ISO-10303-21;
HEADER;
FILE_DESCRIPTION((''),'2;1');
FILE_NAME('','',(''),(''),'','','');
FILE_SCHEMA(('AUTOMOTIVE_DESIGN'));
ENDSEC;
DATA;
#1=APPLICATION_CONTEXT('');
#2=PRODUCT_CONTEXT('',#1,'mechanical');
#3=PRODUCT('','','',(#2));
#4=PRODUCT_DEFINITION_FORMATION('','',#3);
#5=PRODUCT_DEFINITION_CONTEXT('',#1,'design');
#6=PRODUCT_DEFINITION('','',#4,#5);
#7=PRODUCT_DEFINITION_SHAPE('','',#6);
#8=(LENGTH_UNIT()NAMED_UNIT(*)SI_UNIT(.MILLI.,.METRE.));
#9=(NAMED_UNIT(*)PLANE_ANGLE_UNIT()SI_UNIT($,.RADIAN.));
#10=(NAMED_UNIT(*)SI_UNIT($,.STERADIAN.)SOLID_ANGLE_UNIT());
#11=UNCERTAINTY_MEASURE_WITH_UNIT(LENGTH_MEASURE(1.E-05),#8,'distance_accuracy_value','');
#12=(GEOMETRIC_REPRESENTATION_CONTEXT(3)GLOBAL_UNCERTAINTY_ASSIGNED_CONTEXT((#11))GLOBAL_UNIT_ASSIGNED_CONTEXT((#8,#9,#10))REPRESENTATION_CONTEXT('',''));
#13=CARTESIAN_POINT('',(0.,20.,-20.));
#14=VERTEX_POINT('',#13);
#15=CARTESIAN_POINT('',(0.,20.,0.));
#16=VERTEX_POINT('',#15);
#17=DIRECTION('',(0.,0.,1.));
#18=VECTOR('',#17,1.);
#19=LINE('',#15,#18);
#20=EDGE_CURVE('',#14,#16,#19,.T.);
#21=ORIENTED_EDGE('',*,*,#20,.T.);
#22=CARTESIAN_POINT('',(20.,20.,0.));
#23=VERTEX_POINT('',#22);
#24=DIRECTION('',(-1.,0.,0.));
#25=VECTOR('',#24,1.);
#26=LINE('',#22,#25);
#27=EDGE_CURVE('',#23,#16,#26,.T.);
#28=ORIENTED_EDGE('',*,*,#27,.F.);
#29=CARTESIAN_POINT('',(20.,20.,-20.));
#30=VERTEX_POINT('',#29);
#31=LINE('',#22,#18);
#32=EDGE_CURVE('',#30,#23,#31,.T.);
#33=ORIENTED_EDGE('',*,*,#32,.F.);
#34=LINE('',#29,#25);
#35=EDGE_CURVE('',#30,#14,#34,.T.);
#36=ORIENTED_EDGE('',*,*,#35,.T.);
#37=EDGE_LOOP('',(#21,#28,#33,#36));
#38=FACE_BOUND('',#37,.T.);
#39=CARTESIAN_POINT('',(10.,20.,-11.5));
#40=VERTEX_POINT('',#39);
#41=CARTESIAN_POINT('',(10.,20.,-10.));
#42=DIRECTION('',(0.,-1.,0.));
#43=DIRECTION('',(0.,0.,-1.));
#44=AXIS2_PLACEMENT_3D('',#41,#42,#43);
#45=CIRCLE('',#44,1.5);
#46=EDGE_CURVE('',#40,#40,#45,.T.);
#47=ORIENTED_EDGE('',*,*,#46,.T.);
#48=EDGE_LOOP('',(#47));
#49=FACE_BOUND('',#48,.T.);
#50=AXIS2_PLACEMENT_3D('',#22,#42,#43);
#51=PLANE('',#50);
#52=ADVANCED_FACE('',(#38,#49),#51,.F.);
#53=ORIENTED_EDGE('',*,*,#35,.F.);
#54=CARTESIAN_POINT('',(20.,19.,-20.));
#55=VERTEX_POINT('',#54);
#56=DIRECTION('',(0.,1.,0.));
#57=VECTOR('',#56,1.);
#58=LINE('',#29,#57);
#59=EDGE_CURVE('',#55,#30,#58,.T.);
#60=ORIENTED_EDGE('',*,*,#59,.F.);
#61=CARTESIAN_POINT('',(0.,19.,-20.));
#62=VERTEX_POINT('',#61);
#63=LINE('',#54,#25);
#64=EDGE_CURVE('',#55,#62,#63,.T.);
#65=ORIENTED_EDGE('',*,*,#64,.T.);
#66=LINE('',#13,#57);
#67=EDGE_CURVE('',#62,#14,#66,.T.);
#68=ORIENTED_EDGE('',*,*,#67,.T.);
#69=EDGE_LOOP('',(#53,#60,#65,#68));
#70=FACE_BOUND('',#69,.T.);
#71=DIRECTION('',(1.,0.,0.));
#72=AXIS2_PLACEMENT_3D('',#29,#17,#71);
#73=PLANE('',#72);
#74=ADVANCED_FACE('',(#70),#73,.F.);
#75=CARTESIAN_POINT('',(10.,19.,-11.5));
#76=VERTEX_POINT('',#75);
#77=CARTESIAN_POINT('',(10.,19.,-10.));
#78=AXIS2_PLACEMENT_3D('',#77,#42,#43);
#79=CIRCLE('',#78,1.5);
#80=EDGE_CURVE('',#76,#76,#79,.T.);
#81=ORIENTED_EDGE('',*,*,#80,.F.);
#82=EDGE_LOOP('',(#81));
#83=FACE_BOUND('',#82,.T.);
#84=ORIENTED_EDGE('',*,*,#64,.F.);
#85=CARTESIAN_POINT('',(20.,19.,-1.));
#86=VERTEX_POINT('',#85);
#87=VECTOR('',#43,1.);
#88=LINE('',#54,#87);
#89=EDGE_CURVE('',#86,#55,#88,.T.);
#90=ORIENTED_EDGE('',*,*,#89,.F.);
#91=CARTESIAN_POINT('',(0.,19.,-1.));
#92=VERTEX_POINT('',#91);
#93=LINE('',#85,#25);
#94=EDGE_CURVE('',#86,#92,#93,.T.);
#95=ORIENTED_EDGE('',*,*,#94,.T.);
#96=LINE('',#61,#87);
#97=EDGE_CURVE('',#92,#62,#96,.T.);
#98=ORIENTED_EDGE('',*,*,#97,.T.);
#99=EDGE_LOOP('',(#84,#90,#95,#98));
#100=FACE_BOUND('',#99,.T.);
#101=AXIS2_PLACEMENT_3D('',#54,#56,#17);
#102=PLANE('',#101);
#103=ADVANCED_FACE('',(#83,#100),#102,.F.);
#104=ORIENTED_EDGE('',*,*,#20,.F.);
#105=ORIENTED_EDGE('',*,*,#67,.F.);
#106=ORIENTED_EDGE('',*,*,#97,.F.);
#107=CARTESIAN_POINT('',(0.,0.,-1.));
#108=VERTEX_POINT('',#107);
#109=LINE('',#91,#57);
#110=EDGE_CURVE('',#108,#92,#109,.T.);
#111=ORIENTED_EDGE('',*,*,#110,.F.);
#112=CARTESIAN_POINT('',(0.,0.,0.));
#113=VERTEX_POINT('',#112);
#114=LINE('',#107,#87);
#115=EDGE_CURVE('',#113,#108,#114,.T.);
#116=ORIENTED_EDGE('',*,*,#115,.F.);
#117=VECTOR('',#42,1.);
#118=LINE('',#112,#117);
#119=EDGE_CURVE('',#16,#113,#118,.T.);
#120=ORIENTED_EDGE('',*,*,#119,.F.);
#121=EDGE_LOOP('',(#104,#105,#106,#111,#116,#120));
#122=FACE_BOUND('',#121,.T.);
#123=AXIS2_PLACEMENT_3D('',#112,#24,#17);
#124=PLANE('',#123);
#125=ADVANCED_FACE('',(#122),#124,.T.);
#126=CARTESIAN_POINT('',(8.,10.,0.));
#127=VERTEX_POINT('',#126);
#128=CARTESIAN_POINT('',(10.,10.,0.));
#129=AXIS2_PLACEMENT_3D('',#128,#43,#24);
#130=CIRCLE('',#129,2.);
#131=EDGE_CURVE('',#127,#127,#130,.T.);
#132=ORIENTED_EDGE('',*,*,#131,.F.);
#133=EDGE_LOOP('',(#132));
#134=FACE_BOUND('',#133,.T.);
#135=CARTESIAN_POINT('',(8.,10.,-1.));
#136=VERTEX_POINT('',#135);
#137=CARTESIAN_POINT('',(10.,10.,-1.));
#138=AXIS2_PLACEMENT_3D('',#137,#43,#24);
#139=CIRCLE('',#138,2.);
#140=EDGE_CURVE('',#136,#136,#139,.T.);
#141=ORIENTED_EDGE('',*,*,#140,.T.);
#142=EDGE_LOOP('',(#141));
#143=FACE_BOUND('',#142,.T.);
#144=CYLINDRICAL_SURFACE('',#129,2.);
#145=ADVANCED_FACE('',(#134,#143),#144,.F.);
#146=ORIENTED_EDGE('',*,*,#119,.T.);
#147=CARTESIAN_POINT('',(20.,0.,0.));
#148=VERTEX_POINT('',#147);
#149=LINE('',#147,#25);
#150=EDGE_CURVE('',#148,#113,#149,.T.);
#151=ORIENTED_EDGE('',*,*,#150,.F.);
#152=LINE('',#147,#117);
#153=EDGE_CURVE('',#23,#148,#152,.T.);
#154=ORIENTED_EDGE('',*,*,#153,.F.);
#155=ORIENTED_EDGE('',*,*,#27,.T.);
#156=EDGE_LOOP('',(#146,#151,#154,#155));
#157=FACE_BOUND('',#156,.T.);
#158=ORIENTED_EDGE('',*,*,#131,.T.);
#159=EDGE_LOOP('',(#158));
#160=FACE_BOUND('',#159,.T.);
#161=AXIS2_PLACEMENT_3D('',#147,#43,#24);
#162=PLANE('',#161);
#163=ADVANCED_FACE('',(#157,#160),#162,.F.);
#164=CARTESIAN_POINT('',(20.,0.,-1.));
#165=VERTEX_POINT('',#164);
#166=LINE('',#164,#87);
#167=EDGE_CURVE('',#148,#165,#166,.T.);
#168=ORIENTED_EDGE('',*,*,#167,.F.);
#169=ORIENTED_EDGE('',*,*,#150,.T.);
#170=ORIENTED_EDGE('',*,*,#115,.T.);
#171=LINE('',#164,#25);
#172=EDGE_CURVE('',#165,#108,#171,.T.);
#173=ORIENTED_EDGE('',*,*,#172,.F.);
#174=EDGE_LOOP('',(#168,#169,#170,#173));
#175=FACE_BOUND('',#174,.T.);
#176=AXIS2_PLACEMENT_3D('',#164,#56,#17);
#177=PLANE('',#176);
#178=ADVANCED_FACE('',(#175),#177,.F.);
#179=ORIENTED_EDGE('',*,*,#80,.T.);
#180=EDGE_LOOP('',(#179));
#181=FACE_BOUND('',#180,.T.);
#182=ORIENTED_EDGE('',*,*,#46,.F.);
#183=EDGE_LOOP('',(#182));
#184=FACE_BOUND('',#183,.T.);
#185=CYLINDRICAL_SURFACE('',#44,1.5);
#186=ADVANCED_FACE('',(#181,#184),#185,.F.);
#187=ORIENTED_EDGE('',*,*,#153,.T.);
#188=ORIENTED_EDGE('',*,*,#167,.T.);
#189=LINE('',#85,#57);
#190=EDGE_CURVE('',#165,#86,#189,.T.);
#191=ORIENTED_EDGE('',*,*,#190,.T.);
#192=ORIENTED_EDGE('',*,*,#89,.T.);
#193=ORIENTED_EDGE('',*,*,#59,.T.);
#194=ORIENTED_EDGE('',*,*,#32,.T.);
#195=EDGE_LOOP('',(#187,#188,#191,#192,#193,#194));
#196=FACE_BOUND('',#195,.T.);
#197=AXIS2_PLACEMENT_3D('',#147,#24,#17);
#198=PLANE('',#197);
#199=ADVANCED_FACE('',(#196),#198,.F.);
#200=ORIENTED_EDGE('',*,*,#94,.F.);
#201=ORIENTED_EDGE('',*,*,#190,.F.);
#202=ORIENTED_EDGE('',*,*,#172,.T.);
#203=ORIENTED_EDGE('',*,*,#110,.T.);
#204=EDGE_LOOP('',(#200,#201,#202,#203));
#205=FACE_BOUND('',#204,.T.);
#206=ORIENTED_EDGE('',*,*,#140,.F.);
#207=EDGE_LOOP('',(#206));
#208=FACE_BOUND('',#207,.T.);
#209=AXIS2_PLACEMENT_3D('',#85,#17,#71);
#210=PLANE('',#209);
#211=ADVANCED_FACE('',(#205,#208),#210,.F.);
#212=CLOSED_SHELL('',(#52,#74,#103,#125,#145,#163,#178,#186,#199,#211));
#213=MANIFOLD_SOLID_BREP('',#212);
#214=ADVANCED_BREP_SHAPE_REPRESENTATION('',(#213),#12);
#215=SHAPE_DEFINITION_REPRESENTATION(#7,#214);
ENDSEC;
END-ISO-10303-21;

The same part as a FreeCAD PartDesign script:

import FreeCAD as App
import Part
import Sketcher


def add_polygon(sketch, points):
    """Adds a closed chain of lines whose ends are joined by coincident constraints."""
    first, n = sketch.GeometryCount, len(points)
    for a, b in zip(points, points[1:] + points[:1]):
        sketch.addGeometry(Part.LineSegment(App.Vector(*a, 0), App.Vector(*b, 0)), False)
    for i in range(n):
        sketch.addConstraint(Sketcher.Constraint("Coincident", first + i, 2, first + (i + 1) % n, 1))

doc = App.newDocument("Part")
body = doc.addObject("PartDesign::Body", "Body")

# Sketch on YZ plane
sketch1 = doc.addObject("Sketcher::SketchObject", "Sketch")
body.addObject(sketch1)
sketch1.AttachmentSupport = (doc.YZ_Plane, [""])
sketch1.MapMode = "FlatFace"
add_polygon(sketch1, [(20, 0), (0, 0), (0, -1), (19, -1), (19, -20), (20, -20)])  # lines 0-5
sketch1.addConstraint(Sketcher.Constraint("Horizontal", 0))
sketch1.addConstraint(Sketcher.Constraint("Vertical", 1))
sketch1.addConstraint(Sketcher.Constraint("Horizontal", 2))
sketch1.addConstraint(Sketcher.Constraint("Vertical", 3))
sketch1.addConstraint(Sketcher.Constraint("Horizontal", 4))
sketch1.addConstraint(Sketcher.Constraint("Vertical", 5))
sketch1.addConstraint(Sketcher.Constraint("Coincident", 0, 2, -1, 1))
sketch1.addConstraint(Sketcher.Constraint("Equal", 4, 1))
sketch1.addConstraint(Sketcher.Constraint("Equal", 2, 3))
sketch1.addConstraint(Sketcher.Constraint("DistanceX", 0, 2, 0, 1, 20.0))
sketch1.addConstraint(Sketcher.Constraint("DistanceX", 2, 1, 2, 2, 19.0))
pad1 = doc.addObject("PartDesign::Pad", "Pad")
body.addObject(pad1)
pad1.Profile = sketch1
pad1.Length = 20

# Sketch on XY plane
sketch2 = doc.addObject("Sketcher::SketchObject", "Sketch001")
body.addObject(sketch2)
sketch2.AttachmentSupport = (doc.XY_Plane, [""])
sketch2.MapMode = "FlatFace"
sketch2.AttachmentOffset = App.Placement(App.Vector(0, 0, -1), App.Rotation())
sketch2.addGeometry(Part.Circle(App.Vector(10, 10, 0), App.Vector(0, 0, 1), 2), False)
sketch2.addConstraint(Sketcher.Constraint("Diameter", 0, 4.0))
sketch2.addConstraint(Sketcher.Constraint("DistanceX", -1, 1, 0, 3, 10.0))
sketch2.addConstraint(Sketcher.Constraint("DistanceY", -1, 1, 0, 3, 10.0))
pocket1 = doc.addObject("PartDesign::Pocket", "Pocket")
body.addObject(pocket1)
pocket1.Profile = sketch2
pocket1.Type = "ThroughAll"
pocket1.Reversed = True

# Sketch on XZ plane
sketch3 = doc.addObject("Sketcher::SketchObject", "Sketch002")
body.addObject(sketch3)
sketch3.AttachmentSupport = (doc.XZ_Plane, [""])
sketch3.MapMode = "FlatFace"
sketch3.AttachmentOffset = App.Placement(App.Vector(0, 0, -19), App.Rotation())
sketch3.addGeometry(Part.Circle(App.Vector(10, -10, 0), App.Vector(0, 0, 1), 1.5), False)
sketch3.addConstraint(Sketcher.Constraint("Diameter", 0, 3.0))
sketch3.addConstraint(Sketcher.Constraint("DistanceX", -1, 1, 0, 3, 10.0))
sketch3.addConstraint(Sketcher.Constraint("DistanceY", 0, 3, -1, 1, 10.0))
pocket2 = doc.addObject("PartDesign::Pocket", "Pocket001")
body.addObject(pocket2)
pocket2.Profile = sketch3
pocket2.Type = "ThroughAll"

doc.recompute()
